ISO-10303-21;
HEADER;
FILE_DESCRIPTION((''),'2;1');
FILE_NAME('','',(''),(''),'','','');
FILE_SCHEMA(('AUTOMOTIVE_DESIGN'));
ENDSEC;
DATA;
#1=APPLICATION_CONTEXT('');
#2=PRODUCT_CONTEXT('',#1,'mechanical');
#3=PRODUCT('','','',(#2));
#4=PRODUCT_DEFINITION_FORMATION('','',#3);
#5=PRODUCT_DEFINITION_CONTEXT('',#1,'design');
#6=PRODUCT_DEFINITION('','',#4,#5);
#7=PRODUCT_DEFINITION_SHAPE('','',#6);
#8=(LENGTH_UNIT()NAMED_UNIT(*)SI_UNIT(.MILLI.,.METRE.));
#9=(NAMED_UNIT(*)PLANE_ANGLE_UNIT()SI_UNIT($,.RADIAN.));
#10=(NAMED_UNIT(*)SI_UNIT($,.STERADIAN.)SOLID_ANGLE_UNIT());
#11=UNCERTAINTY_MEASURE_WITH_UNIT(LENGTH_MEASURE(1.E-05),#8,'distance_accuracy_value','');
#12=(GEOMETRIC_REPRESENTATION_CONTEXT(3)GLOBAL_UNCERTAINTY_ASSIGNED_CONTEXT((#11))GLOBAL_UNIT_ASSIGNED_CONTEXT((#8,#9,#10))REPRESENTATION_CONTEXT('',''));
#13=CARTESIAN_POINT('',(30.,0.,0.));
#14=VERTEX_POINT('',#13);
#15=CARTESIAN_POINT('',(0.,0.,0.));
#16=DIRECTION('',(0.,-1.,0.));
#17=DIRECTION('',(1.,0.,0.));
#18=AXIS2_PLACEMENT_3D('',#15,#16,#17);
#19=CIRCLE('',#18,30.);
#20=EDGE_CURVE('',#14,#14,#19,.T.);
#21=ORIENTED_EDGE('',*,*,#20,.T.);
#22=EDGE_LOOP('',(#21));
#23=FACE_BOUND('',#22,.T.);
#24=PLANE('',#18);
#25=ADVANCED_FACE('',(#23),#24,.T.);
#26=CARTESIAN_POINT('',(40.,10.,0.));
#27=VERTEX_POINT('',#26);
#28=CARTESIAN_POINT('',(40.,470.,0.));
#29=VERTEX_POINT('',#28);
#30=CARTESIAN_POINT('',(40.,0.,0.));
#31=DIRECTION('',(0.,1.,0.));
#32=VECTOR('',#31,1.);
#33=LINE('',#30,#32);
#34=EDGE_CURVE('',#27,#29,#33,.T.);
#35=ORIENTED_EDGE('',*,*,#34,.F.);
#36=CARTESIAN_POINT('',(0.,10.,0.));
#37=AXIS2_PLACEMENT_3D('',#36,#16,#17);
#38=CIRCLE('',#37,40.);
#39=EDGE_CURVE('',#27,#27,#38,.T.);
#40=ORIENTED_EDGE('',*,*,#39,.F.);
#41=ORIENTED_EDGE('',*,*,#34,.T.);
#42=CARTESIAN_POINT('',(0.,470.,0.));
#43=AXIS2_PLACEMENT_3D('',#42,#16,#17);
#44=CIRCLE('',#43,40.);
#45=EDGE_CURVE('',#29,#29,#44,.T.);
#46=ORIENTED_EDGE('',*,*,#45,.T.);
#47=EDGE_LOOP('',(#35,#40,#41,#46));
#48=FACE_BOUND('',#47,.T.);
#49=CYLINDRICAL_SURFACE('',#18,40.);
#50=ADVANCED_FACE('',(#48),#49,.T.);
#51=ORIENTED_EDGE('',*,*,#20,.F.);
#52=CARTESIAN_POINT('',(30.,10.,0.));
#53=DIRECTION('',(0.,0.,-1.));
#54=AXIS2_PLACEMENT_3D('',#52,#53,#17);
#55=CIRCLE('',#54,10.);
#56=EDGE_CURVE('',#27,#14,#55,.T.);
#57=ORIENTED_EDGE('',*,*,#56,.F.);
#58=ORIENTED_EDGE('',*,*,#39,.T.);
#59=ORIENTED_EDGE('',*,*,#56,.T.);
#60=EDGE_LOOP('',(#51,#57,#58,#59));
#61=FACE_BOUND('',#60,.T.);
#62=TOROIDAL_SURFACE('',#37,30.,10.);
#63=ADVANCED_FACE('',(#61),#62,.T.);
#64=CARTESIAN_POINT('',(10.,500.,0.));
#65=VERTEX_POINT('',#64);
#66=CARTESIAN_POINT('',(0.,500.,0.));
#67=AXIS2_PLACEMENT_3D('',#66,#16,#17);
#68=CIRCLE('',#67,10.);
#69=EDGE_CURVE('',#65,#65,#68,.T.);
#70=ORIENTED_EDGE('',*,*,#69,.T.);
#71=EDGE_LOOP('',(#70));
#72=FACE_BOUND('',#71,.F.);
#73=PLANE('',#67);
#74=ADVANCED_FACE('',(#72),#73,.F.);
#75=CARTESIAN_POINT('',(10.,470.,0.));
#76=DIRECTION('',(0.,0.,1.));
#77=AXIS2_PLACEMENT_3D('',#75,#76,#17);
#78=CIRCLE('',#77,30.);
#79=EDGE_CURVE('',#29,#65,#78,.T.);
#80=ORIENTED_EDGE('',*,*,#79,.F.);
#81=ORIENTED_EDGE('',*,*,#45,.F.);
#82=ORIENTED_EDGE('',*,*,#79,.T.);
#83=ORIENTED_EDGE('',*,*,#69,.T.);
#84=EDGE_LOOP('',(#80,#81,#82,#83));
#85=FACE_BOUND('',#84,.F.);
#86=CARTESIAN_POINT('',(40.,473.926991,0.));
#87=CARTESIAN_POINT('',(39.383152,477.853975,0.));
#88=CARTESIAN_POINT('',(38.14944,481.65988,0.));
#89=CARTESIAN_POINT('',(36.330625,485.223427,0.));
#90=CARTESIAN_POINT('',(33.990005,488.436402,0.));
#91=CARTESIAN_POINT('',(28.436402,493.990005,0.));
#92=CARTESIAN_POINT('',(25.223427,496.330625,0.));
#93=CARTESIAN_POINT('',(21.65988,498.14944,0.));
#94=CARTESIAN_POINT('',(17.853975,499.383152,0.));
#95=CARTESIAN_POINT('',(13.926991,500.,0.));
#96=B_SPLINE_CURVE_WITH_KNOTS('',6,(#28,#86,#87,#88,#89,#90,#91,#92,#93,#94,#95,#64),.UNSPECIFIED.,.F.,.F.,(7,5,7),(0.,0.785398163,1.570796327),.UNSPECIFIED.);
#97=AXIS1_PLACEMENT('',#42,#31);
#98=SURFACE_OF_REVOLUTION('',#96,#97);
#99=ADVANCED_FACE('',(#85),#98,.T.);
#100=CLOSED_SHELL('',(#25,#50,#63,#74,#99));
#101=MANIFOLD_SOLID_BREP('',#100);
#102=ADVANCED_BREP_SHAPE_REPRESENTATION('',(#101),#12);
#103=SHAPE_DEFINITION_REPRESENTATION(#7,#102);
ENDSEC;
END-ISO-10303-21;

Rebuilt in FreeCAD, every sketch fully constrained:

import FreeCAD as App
import Part
import Sketcher


def edges_at(feature, points):
    """Names of the edges that pass closest to the given points."""
    edges = feature.Shape.Edges
    near = lambda p: min(range(len(edges)), key=lambda i: edges[i].distToShape(Part.Vertex(*p))[0])
    return sorted({f"Edge{near(p) + 1}" for p in points})

doc = App.newDocument("Part")
body = doc.addObject("PartDesign::Body", "Body")

sketch1 = body.newObject("Sketcher::SketchObject", "Sketch")
sketch1.AttachmentSupport = (doc.getObject("XZ_Plane"), [""])
sketch1.MapMode = "FlatFace"
sketch1.addGeometry(Part.Circle(App.Vector(0, 0, 0), App.Vector(0, 0, 1), 40), False)
sketch1.addConstraint([
    Sketcher.Constraint("Coincident", 0, 3, -1, 1),
    Sketcher.Constraint("Diameter", 0, 80.0),
])
pad1 = body.newObject("PartDesign::Pad", "Pad")
pad1.Profile = sketch1
pad1.Length = 500
pad1.Reversed = True
doc.recompute()

fillet = body.newObject("PartDesign::Fillet", "Fillet")
fillet.Base = (pad1, edges_at(pad1, [(-40, 500, 0)]))
fillet.Radius = 30
doc.recompute()

fillet2 = body.newObject("PartDesign::Fillet", "Fillet001")
fillet2.Base = (fillet, edges_at(fillet, [(-40, 0, 0)]))
fillet2.Radius = 10

doc.recompute()
